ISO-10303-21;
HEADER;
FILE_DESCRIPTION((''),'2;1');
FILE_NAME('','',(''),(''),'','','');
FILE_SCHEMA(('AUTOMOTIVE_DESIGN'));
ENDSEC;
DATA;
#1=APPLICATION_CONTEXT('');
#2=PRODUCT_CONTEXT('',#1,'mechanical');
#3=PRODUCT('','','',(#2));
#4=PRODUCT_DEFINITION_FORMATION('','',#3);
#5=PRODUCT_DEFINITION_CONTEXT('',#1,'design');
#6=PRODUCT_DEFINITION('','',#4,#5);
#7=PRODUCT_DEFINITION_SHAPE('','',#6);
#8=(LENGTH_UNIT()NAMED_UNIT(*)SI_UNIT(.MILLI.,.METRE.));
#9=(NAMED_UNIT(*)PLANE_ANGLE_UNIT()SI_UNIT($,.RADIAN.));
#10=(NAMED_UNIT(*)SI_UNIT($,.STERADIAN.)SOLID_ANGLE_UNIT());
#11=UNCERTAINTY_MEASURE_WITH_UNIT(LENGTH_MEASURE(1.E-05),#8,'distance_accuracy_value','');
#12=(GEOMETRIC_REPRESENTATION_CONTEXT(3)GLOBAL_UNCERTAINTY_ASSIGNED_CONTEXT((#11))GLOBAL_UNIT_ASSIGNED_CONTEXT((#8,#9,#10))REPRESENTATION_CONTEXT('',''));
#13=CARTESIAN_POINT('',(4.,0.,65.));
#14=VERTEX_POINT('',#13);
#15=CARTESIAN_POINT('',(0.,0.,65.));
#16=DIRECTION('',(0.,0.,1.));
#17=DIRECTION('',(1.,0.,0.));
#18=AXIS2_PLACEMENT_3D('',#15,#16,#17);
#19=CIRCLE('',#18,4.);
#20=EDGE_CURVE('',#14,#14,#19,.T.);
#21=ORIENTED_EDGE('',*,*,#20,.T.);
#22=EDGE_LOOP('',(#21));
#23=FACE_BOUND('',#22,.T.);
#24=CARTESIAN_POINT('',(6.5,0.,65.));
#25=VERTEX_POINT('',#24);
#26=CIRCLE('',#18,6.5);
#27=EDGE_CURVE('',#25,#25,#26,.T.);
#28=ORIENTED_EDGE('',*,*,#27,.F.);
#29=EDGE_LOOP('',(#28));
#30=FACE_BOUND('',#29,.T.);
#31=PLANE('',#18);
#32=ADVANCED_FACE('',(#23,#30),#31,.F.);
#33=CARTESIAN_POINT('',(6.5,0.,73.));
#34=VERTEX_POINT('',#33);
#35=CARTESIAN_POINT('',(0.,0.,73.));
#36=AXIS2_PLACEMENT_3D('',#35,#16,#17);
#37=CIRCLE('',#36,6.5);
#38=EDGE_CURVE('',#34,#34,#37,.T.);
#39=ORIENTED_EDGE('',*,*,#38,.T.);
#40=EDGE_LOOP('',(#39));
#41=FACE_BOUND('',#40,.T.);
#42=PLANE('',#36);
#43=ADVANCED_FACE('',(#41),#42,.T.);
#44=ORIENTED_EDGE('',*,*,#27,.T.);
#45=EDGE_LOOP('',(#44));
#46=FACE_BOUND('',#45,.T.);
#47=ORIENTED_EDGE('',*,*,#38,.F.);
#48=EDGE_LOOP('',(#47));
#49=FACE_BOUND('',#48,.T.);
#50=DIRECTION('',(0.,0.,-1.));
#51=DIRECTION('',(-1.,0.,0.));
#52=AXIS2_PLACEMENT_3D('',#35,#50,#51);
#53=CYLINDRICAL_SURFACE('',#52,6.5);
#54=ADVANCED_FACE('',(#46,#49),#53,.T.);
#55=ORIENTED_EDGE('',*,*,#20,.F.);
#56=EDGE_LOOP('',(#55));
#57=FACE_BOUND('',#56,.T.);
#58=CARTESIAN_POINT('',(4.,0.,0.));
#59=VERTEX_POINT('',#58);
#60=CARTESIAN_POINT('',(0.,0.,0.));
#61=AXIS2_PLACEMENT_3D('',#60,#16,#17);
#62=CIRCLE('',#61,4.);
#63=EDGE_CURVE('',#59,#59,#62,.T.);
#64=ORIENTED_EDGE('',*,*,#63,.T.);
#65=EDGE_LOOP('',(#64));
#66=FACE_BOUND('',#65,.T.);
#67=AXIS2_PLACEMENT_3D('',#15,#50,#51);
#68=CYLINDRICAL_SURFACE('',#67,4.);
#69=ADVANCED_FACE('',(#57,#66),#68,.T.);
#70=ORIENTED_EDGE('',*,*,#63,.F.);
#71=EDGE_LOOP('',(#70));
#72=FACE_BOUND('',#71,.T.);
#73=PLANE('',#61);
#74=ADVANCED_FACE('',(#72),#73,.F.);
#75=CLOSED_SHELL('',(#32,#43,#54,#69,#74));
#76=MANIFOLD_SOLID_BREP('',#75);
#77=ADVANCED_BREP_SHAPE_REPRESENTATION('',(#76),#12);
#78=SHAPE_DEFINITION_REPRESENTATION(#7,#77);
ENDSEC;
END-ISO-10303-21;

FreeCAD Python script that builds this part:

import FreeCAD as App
import Part
import Sketcher
Q = App.Units.Quantity

doc = App.newDocument("Part")
body = doc.addObject("PartDesign::Body", "Body")

# Sketch on XY plane
sketch1 = body.newObject("Sketcher::SketchObject", "Sketch")
sketch1.AttachmentSupport = (doc.getObject("XY_Plane"), [""])
sketch1.MapMode = "FlatFace"
sketch1.addGeometry(Part.Circle(App.Vector(0, 0, 0), App.Vector(0, 0, 1), 4), False)
sketch1.addConstraint([
    Sketcher.Constraint("Coincident", 0, 3, -1, 1),
    Sketcher.Constraint("Diameter", 0, Q("8 mm")),
])
pad1 = body.newObject("PartDesign::Pad", "Pad")
pad1.Profile = sketch1
pad1.Length = 65

# Sketch on XY plane
sketch2 = body.newObject("Sketcher::SketchObject", "Sketch001")
sketch2.AttachmentSupport = (doc.getObject("XY_Plane"), [""])
sketch2.MapMode = "FlatFace"
sketch2.AttachmentOffset = App.Placement(App.Vector(0, 0, 65), App.Rotation())
sketch2.addGeometry(Part.Circle(App.Vector(0, 0, 0), App.Vector(0, 0, 1), 6.5), False)
sketch2.addConstraint([
    Sketcher.Constraint("Coincident", 0, 3, -1, 1),
    Sketcher.Constraint("Diameter", 0, Q("13 mm")),
])
pad2 = body.newObject("PartDesign::Pad", "Pad001")
pad2.Profile = sketch2
pad2.Length = 8

doc.recompute()
